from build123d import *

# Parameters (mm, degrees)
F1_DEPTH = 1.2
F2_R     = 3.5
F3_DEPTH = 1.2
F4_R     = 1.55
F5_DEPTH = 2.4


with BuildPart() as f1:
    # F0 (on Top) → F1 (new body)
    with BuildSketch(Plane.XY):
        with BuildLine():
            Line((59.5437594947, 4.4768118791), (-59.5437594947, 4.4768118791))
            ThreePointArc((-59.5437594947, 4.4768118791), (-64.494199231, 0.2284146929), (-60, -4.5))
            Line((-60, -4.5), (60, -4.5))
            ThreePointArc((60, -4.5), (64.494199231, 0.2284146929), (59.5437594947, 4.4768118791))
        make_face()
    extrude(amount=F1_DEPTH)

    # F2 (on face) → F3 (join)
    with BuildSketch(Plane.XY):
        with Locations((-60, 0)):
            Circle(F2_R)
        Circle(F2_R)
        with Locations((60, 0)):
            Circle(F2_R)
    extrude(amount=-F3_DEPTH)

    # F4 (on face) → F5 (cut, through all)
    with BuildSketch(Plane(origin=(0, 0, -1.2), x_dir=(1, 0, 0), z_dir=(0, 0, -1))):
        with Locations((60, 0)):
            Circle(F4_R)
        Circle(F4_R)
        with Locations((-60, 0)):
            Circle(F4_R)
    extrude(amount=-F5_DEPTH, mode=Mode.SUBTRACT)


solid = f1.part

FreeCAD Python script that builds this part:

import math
import FreeCAD as App
import Part
import Sketcher

V = App.Vector
Q = App.Units.Quantity

doc = App.newDocument("Part")
params = doc.addObject("Spreadsheet::Sheet", "Params")
for row, (alias, value) in enumerate([
    ("sketch1_radius", "4.5 mm"),
    ("sketch1_width", "120 mm"),
    ("pad1_length", "1.2 mm"),
    ("sketch2_diameter", "7 mm"),
    ("pad2_length", "1.2 mm"),
    ("sketch3_diameter", "3.1 mm"),
], start=1):
    params.set(f"A{row}", alias)
    params.set(f"B{row}", "=" + value)
    params.setAlias(f"B{row}", alias)

body = doc.addObject("PartDesign::Body", "Body")

# Sketch on XY plane
sketch1 = body.newObject("Sketcher::SketchObject", "Sketch")
sketch1.AttachmentSupport = (doc.getObject("XY_Plane"), [""])
sketch1.MapMode = "FlatFace"
sketch1.addGeometry([
    Part.LineSegment(V(59.5, 4.5, 0), V(-59.5, 4.5, 0)),
    Part.ArcOfCircle(Part.Circle(V(-60, 0, 0), V(0, 0, 1), 4.5), math.radians(84), math.radians(270)),
    Part.LineSegment(V(-60, -4.5, 0), V(60, -4.5, 0)),
    Part.ArcOfCircle(Part.Circle(V(60, 0, 0), V(0, 0, 1), 4.5), math.radians(-90), math.radians(96)),
], False)
sketch1.addConstraint([
    Sketcher.Constraint("Coincident", 0, 2, 1, 1),
    Sketcher.Constraint("Tangent", 1, 2, 2, 1),
    Sketcher.Constraint("Tangent", 2, 2, 3, 1),
    Sketcher.Constraint("Coincident", 3, 2, 0, 1),
    Sketcher.Constraint("Horizontal", 0),
    Sketcher.Constraint("Horizontal", 2),
    Sketcher.Constraint("Equal", 1, 3),
    Sketcher.Constraint("Symmetric", 1, 3, 3, 3, -1, 1),
    Sketcher.Constraint("Radius", 1, Q("4.5 mm")),
    Sketcher.Constraint("DistanceX", 2, 1, 2, 2, Q("120 mm")),
    Sketcher.Constraint("DistanceX", 0, 2, 0, 1, Q("119.087519 mm")),
])
sketch1.setExpression("Constraints[8]", "Params.sketch1_radius")
sketch1.setExpression("Constraints[9]", "Params.sketch1_width")
pad1 = body.newObject("PartDesign::Pad", "Pad")
pad1.Profile = sketch1
pad1.setExpression("Length", "Params.pad1_length")

# Sketch on XY plane
sketch2 = body.newObject("Sketcher::SketchObject", "Sketch001")
sketch2.AttachmentSupport = (doc.getObject("XY_Plane"), [""])
sketch2.MapMode = "FlatFace"
sketch2.addGeometry([
    Part.Circle(V(-60, 0, 0), V(0, 0, 1), 3.5),
    Part.Circle(V(0, 0, 0), V(0, 0, 1), 3.5),
    Part.Circle(V(60, 0, 0), V(0, 0, 1), 3.5),
], False)
sketch2.addConstraint([
    Sketcher.Constraint("Coincident", 1, 3, -1, 1),
    Sketcher.Constraint("Equal", 0, 1),
    Sketcher.Constraint("Equal", 1, 2),
    Sketcher.Constraint("Symmetric", 0, 3, 2, 3, -1, 1),
    Sketcher.Constraint("PointOnObject", 0, 3, -1),
    Sketcher.Constraint("Diameter", 0, Q("7 mm")),
    Sketcher.Constraint("DistanceX", 0, 3, -1, 1, Q("60 mm")),
])
sketch2.setExpression("Constraints[5]", "Params.sketch2_diameter")
pad2 = body.newObject("PartDesign::Pad", "Pad001")
pad2.Profile = sketch2
pad2.setExpression("Length", "Params.pad2_length")
pad2.Reversed = True

# Sketch on XY plane
sketch3 = body.newObject("Sketcher::SketchObject", "Sketch002")
sketch3.AttachmentSupport = (doc.getObject("XY_Plane"), [""])
sketch3.MapMode = "FlatFace"
sketch3.AttachmentOffset = App.Placement(V(0, 0, -1.2), App.Rotation())
sketch3.addGeometry([
    Part.Circle(V(60, 0, 0), V(0, 0, 1), 1.6),
    Part.Circle(V(0, 0, 0), V(0, 0, 1), 1.6),
    Part.Circle(V(-60, 0, 0), V(0, 0, 1), 1.6),
], False)
sketch3.addConstraint([
    Sketcher.Constraint("Coincident", 1, 3, -1, 1),
    Sketcher.Constraint("Equal", 0, 1),
    Sketcher.Constraint("Equal", 1, 2),
    Sketcher.Constraint("Symmetric", 0, 3, 2, 3, -1, 1),
    Sketcher.Constraint("PointOnObject", 0, 3, -1),
    Sketcher.Constraint("Diameter", 0, Q("3.1 mm")),
    Sketcher.Constraint("DistanceX", -1, 1, 0, 3, Q("60 mm")),
])
sketch3.setExpression("Constraints[5]", "Params.sketch3_diameter")
pocket1 = body.newObject("PartDesign::Pocket", "Pocket")
pocket1.Profile = sketch3
pocket1.Type = "ThroughAll"
pocket1.Reversed = True

doc.recompute()
